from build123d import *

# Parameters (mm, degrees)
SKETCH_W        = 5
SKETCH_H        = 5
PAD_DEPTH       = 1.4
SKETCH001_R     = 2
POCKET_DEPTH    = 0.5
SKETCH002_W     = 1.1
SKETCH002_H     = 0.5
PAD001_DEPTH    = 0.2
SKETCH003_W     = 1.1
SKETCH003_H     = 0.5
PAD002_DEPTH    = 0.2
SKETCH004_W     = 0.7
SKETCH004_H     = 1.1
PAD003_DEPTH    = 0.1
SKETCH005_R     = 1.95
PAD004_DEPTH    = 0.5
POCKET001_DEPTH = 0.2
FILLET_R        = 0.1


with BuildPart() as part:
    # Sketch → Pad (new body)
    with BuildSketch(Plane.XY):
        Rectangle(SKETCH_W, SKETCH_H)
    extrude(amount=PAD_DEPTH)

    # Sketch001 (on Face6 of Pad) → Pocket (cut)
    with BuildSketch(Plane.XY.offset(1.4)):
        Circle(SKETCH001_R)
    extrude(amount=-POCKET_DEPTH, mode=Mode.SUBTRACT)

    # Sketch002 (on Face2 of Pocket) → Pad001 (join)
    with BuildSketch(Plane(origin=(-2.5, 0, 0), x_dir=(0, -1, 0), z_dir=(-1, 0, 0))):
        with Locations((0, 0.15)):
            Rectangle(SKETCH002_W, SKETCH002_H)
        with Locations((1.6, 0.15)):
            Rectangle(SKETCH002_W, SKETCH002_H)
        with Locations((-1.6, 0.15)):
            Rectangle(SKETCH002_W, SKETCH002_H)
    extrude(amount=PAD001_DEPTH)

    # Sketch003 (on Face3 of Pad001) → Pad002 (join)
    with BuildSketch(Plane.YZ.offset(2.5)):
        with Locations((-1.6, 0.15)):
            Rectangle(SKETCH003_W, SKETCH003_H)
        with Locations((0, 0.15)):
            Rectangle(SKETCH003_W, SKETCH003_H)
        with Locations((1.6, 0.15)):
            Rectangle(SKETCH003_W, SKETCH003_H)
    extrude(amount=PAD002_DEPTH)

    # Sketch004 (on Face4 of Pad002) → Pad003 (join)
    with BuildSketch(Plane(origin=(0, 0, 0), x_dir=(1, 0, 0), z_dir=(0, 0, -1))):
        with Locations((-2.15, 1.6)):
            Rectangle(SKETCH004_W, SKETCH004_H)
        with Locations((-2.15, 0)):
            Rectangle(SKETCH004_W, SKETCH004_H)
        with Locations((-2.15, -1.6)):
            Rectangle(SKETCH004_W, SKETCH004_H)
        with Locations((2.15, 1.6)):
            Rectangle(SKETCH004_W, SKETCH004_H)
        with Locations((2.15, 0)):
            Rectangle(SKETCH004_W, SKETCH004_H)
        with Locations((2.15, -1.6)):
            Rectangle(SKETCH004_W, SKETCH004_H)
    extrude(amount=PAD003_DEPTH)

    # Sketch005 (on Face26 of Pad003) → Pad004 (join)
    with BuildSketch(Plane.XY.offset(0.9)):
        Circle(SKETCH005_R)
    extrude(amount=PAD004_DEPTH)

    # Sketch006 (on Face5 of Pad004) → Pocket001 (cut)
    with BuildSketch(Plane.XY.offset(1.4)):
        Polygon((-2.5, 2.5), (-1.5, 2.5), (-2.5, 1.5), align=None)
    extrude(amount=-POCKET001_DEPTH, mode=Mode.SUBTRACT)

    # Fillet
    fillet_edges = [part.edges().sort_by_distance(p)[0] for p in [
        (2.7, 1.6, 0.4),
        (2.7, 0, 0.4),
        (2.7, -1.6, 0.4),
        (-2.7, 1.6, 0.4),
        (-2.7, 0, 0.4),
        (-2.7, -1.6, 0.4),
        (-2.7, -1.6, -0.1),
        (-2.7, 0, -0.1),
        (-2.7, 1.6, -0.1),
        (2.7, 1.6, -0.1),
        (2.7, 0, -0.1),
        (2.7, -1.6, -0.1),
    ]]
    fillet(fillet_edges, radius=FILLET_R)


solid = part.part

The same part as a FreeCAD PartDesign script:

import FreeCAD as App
import Part
import Sketcher
from FreeCAD import Vector


def edges_at(feature, points):
    """Names of the edges that pass closest to the given points."""
    edges = feature.Shape.Edges
    near = lambda p: min(range(len(edges)), key=lambda i: edges[i].distToShape(Part.Vertex(*p))[0])
    return sorted({f"Edge{near(p) + 1}" for p in points})

doc = App.newDocument("Part")
params = doc.addObject("Spreadsheet::Sheet", "Params")
for row, (alias, value) in enumerate([
    ("sketch1_width", "5 mm"),
    ("pad1_length", "1.4 mm"),
    ("sketch2_diameter", "4 mm"),
    ("pocket1_length", "0.5 mm"),
    ("sketch3_width", "1.1 mm"),
    ("sketch3_height", "0.5 mm"),
    ("pad2_length", "0.2 mm"),
    ("sketch4_width", "1.1 mm"),
    ("sketch4_height", "0.5 mm"),
    ("pad3_length", "0.2 mm"),
    ("sketch5_width", "0.7 mm"),
    ("sketch5_height", "1.1 mm"),
    ("pad4_length", "0.1 mm"),
    ("sketch6_diameter", "3.9 mm"),
    ("pad5_length", "0.5 mm"),
    ("sketch7_width", "1 mm"),
    ("pocket2_length", "0.2 mm"),
    ("fillet_radius", "0.1 mm"),
], start=1):
    params.set(f"A{row}", alias)
    params.set(f"B{row}", "=" + value)
    params.setAlias(f"B{row}", alias)

body = doc.addObject("PartDesign::Body", "Body")

# Sketch on XY plane
sketch1 = body.newObject("Sketcher::SketchObject", "Sketch")
sketch1.AttachmentSupport = (doc.getObject("XY_Plane"), [""])
sketch1.MapMode = "FlatFace"
sketch1.addGeometry([
    Part.LineSegment(Vector(-2.5, 2.5, 0), Vector(-2.5, -2.5, 0)),
    Part.LineSegment(Vector(-2.5, -2.5, 0), Vector(2.5, -2.5, 0)),
    Part.LineSegment(Vector(2.5, -2.5, 0), Vector(2.5, 2.5, 0)),
    Part.LineSegment(Vector(2.5, 2.5, 0), Vector(-2.5, 2.5, 0)),
], False)
sketch1.addConstraint([
    Sketcher.Constraint("Coincident", 0, 2, 1, 1),
    Sketcher.Constraint("Coincident", 1, 2, 2, 1),
    Sketcher.Constraint("Coincident", 2, 2, 3, 1),
    Sketcher.Constraint("Coincident", 3, 2, 0, 1),
    Sketcher.Constraint("Vertical", 0),
    Sketcher.Constraint("Horizontal", 1),
    Sketcher.Constraint("Vertical", 2),
    Sketcher.Constraint("Horizontal", 3),
    Sketcher.Constraint("Symmetric", 0, 2, 2, 2, -1, 1),
    Sketcher.Constraint("Equal", 3, 0),
    Sketcher.Constraint("DistanceX", 1, 1, 1, 2, 5.0),
])
sketch1.setExpression("Constraints[10]", "Params.sketch1_width")
pad1 = body.newObject("PartDesign::Pad", "Pad")
pad1.Profile = sketch1
pad1.setExpression("Length", "Params.pad1_length")

# Sketch on XY plane
sketch2 = body.newObject("Sketcher::SketchObject", "Sketch001")
sketch2.AttachmentSupport = (doc.getObject("XY_Plane"), [""])
sketch2.MapMode = "FlatFace"
sketch2.AttachmentOffset = App.Placement(Vector(0, 0, 1.4), App.Rotation())
sketch2.addGeometry(Part.Circle(Vector(0, 0, 0), Vector(0, 0, 1), 2), False)
sketch2.addConstraint([
    Sketcher.Constraint("Coincident", 0, 3, -1, 1),
    Sketcher.Constraint("Diameter", 0, 4.0),
])
sketch2.setExpression("Constraints[1]", "Params.sketch2_diameter")
pocket1 = body.newObject("PartDesign::Pocket", "Pocket")
pocket1.Profile = sketch2
pocket1.setExpression("Length", "Params.pocket1_length")

# Sketch on YZ plane
sketch3 = body.newObject("Sketcher::SketchObject", "Sketch002")
sketch3.AttachmentSupport = (doc.getObject("YZ_Plane"), [""])
sketch3.MapMode = "FlatFace"
sketch3.AttachmentOffset = App.Placement(Vector(0, 0, -2.5), App.Rotation())
sketch3.addGeometry([
    Part.LineSegment(Vector(0.55, 0.4, 0), Vector(0.55, -0.1, 0)),  # 0
    Part.LineSegment(Vector(0.55, -0.1, 0), Vector(-0.55, -0.1, 0)),  # 1
    Part.LineSegment(Vector(-0.55, -0.1, 0), Vector(-0.55, 0.4, 0)),  # 2
    Part.LineSegment(Vector(-0.55, 0.4, 0), Vector(0.55, 0.4, 0)),  # 3
    Part.LineSegment(Vector(-1.05, 0.4, 0), Vector(-1.05, -0.1, 0)),  # 4
    Part.LineSegment(Vector(-1.05, -0.1, 0), Vector(-2.15, -0.1, 0)),  # 5
    Part.LineSegment(Vector(-2.15, -0.1, 0), Vector(-2.15, 0.4, 0)),  # 6
    Part.LineSegment(Vector(-2.15, 0.4, 0), Vector(-1.05, 0.4, 0)),  # 7
    Part.LineSegment(Vector(2.15, 0.4, 0), Vector(2.15, -0.1, 0)),  # 8
    Part.LineSegment(Vector(2.15, -0.1, 0), Vector(1.05, -0.1, 0)),  # 9
    Part.LineSegment(Vector(1.05, -0.1, 0), Vector(1.05, 0.4, 0)),  # 10
    Part.LineSegment(Vector(1.05, 0.4, 0), Vector(2.15, 0.4, 0)),  # 11
], False)
sketch3.addConstraint([
    Sketcher.Constraint("Coincident", 0, 2, 1, 1),
    Sketcher.Constraint("Coincident", 1, 2, 2, 1),
    Sketcher.Constraint("Coincident", 2, 2, 3, 1),
    Sketcher.Constraint("Coincident", 3, 2, 0, 1),
    Sketcher.Constraint("Coincident", 4, 2, 5, 1),
    Sketcher.Constraint("Coincident", 5, 2, 6, 1),
    Sketcher.Constraint("Coincident", 6, 2, 7, 1),
    Sketcher.Constraint("Coincident", 7, 2, 4, 1),
    Sketcher.Constraint("Coincident", 8, 2, 9, 1),
    Sketcher.Constraint("Coincident", 9, 2, 10, 1),
    Sketcher.Constraint("Coincident", 10, 2, 11, 1),
    Sketcher.Constraint("Coincident", 11, 2, 8, 1),
    Sketcher.Constraint("Vertical", 0),
    Sketcher.Constraint("Horizontal", 1),
    Sketcher.Constraint("Vertical", 2),
    Sketcher.Constraint("Horizontal", 3),
    Sketcher.Constraint("Vertical", 4),
    Sketcher.Constraint("Horizontal", 5),
    Sketcher.Constraint("Vertical", 6),
    Sketcher.Constraint("Horizontal", 7),
    Sketcher.Constraint("Vertical", 8),
    Sketcher.Constraint("Horizontal", 9),
    Sketcher.Constraint("Vertical", 10),
    Sketcher.Constraint("Horizontal", 11),
    Sketcher.Constraint("Symmetric", 5, 2, 8, 2, -2),
    Sketcher.Constraint("Symmetric", 7, 2, 10, 2, -2),
    Sketcher.Constraint("Horizontal", 1, 2, 4, 2),
    Sketcher.Constraint("Horizontal", 3, 2, 6, 2),
    Sketcher.Constraint("Equal", 3, 5),
    Sketcher.Constraint("DistanceX", 1, 2, 1, 1, 1.1),
    Sketcher.Constraint("DistanceY", 0, 2, 0, 1, 0.5),
    Sketcher.Constraint("DistanceY", 0, 2, -1, 1, 0.1),
    Sketcher.Constraint("DistanceX", 4, 2, 1, 2, 0.5),
    Sketcher.Constraint("DistanceX", 0, 2, 8, 2, 1.6),
])
sketch3.setExpression("Constraints[29]", "Params.sketch3_width")
sketch3.setExpression("Constraints[30]", "Params.sketch3_height")
pad2 = body.newObject("PartDesign::Pad", "Pad001")
pad2.Profile = sketch3
pad2.setExpression("Length", "Params.pad2_length")
pad2.Reversed = True

# Sketch on YZ plane
sketch4 = body.newObject("Sketcher::SketchObject", "Sketch003")
sketch4.AttachmentSupport = (doc.getObject("YZ_Plane"), [""])
sketch4.MapMode = "FlatFace"
sketch4.AttachmentOffset = App.Placement(Vector(0, 0, 2.5), App.Rotation())
sketch4.addGeometry([
    Part.LineSegment(Vector(-2.15, 0.4, 0), Vector(-2.15, -0.1, 0)),  # 0
    Part.LineSegment(Vector(-2.15, -0.1, 0), Vector(-1.05, -0.1, 0)),  # 1
    Part.LineSegment(Vector(-1.05, -0.1, 0), Vector(-1.05, 0.4, 0)),  # 2
    Part.LineSegment(Vector(-1.05, 0.4, 0), Vector(-2.15, 0.4, 0)),  # 3
    Part.LineSegment(Vector(-0.55, 0.4, 0), Vector(-0.55, -0.1, 0)),  # 4
    Part.LineSegment(Vector(-0.55, -0.1, 0), Vector(0.55, -0.1, 0)),  # 5
    Part.LineSegment(Vector(0.55, -0.1, 0), Vector(0.55, 0.4, 0)),  # 6
    Part.LineSegment(Vector(0.55, 0.4, 0), Vector(-0.55, 0.4, 0)),  # 7
    Part.LineSegment(Vector(1.05, 0.4, 0), Vector(1.05, -0.1, 0)),  # 8
    Part.LineSegment(Vector(1.05, -0.1, 0), Vector(2.15, -0.1, 0)),  # 9
    Part.LineSegment(Vector(2.15, -0.1, 0), Vector(2.15, 0.4, 0)),  # 10
    Part.LineSegment(Vector(2.15, 0.4, 0), Vector(1.05, 0.4, 0)),  # 11
], False)
sketch4.addConstraint([
    Sketcher.Constraint("Coincident", 0, 2, 1, 1),
    Sketcher.Constraint("Coincident", 1, 2, 2, 1),
    Sketcher.Constraint("Coincident", 2, 2, 3, 1),
    Sketcher.Constraint("Coincident", 3, 2, 0, 1),
    Sketcher.Constraint("Coincident", 4, 2, 5, 1),
    Sketcher.Constraint("Coincident", 5, 2, 6, 1),
    Sketcher.Constraint("Coincident", 6, 2, 7, 1),
    Sketcher.Constraint("Coincident", 7, 2, 4, 1),
    Sketcher.Constraint("Coincident", 8, 2, 9, 1),
    Sketcher.Constraint("Coincident", 9, 2, 10, 1),
    Sketcher.Constraint("Coincident", 10, 2, 11, 1),
    Sketcher.Constraint("Coincident", 11, 2, 8, 1),
    Sketcher.Constraint("Vertical", 0),
    Sketcher.Constraint("Horizontal", 1),
    Sketcher.Constraint("Vertical", 2),
    Sketcher.Constraint("Horizontal", 3),
    Sketcher.Constraint("Vertical", 4),
    Sketcher.Constraint("Horizontal", 5),
    Sketcher.Constraint("Vertical", 6),
    Sketcher.Constraint("Horizontal", 7),
    Sketcher.Constraint("Vertical", 8),
    Sketcher.Constraint("Horizontal", 9),
    Sketcher.Constraint("Vertical", 10),
    Sketcher.Constraint("Horizontal", 11),
    Sketcher.Constraint("Symmetric", 1, 2, 8, 2, -2),
    Sketcher.Constraint("Symmetric", 3, 2, 10, 2, -2),
    Sketcher.Constraint("Horizontal", 1, 2, 4, 2),
    Sketcher.Constraint("Horizontal", 3, 2, 6, 2),
    Sketcher.Constraint("Equal", 3, 5),
    Sketcher.Constraint("DistanceX", 1, 1, 1, 2, 1.1),
    Sketcher.Constraint("DistanceY", 0, 2, 0, 1, 0.5),
    Sketcher.Constraint("DistanceY", 0, 2, -1, 1, 0.1),
    Sketcher.Constraint("DistanceX", 1, 2, 4, 2, 0.5),
    Sketcher.Constraint("DistanceX", 5, 2, 8, 2, 0.5),
])
sketch4.setExpression("Constraints[29]", "Params.sketch4_width")
sketch4.setExpression("Constraints[30]", "Params.sketch4_height")
pad3 = body.newObject("PartDesign::Pad", "Pad002")
pad3.Profile = sketch4
pad3.setExpression("Length", "Params.pad3_length")

# Sketch on XY plane
sketch5 = body.newObject("Sketcher::SketchObject", "Sketch004")
sketch5.AttachmentSupport = (doc.getObject("XY_Plane"), [""])
sketch5.MapMode = "FlatFace"
sketch5.addGeometry([
    Part.LineSegment(Vector(-2.5, -2.15, 0), Vector(-2.5, -1.05, 0)),  # 0
    Part.LineSegment(Vector(-2.5, -1.05, 0), Vector(-1.8, -1.05, 0)),  # 1
    Part.LineSegment(Vector(-1.8, -1.05, 0), Vector(-1.8, -2.15, 0)),  # 2
    Part.LineSegment(Vector(-1.8, -2.15, 0), Vector(-2.5, -2.15, 0)),  # 3
    Part.LineSegment(Vector(-2.5, -0.55, 0), Vector(-2.5, 0.55, 0)),  # 4
    Part.LineSegment(Vector(-2.5, 0.55, 0), Vector(-1.8, 0.55, 0)),  # 5
    Part.LineSegment(Vector(-1.8, 0.55, 0), Vector(-1.8, -0.55, 0)),  # 6
    Part.LineSegment(Vector(-1.8, -0.55, 0), Vector(-2.5, -0.55, 0)),  # 7
    Part.LineSegment(Vector(-2.5, 1.05, 0), Vector(-2.5, 2.15, 0)),  # 8
    Part.LineSegment(Vector(-2.5, 2.15, 0), Vector(-1.8, 2.15, 0)),  # 9
    Part.LineSegment(Vector(-1.8, 2.15, 0), Vector(-1.8, 1.05, 0)),  # 10
    Part.LineSegment(Vector(-1.8, 1.05, 0), Vector(-2.5, 1.05, 0)),  # 11
    Part.LineSegment(Vector(1.8, -2.15, 0), Vector(1.8, -1.05, 0)),  # 12
    Part.LineSegment(Vector(1.8, -1.05, 0), Vector(2.5, -1.05, 0)),  # 13
    Part.LineSegment(Vector(2.5, -1.05, 0), Vector(2.5, -2.15, 0)),  # 14
    Part.LineSegment(Vector(2.5, -2.15, 0), Vector(1.8, -2.15, 0)),  # 15
    Part.LineSegment(Vector(1.8, -0.55, 0), Vector(1.8, 0.55, 0)),  # 16
    Part.LineSegment(Vector(1.8, 0.55, 0), Vector(2.5, 0.55, 0)),  # 17
    Part.LineSegment(Vector(2.5, 0.55, 0), Vector(2.5, -0.55, 0)),  # 18
    Part.LineSegment(Vector(2.5, -0.55, 0), Vector(1.8, -0.55, 0)),  # 19
    Part.LineSegment(Vector(1.8, 1.05, 0), Vector(1.8, 2.15, 0)),  # 20
    Part.LineSegment(Vector(1.8, 2.15, 0), Vector(2.5, 2.15, 0)),  # 21
    Part.LineSegment(Vector(2.5, 2.15, 0), Vector(2.5, 1.05, 0)),  # 22
    Part.LineSegment(Vector(2.5, 1.05, 0), Vector(1.8, 1.05, 0)),  # 23
], False)
sketch5.addConstraint([
    Sketcher.Constraint("Coincident", 0, 2, 1, 1),
    Sketcher.Constraint("Coincident", 1, 2, 2, 1),
    Sketcher.Constraint("Coincident", 2, 2, 3, 1),
    Sketcher.Constraint("Coincident", 3, 2, 0, 1),
    Sketcher.Constraint("Coincident", 4, 2, 5, 1),
    Sketcher.Constraint("Coincident", 5, 2, 6, 1),
    Sketcher.Constraint("Coincident", 6, 2, 7, 1),
    Sketcher.Constraint("Coincident", 7, 2, 4, 1),
    Sketcher.Constraint("Coincident", 8, 2, 9, 1),
    Sketcher.Constraint("Coincident", 9, 2, 10, 1),
    Sketcher.Constraint("Coincident", 10, 2, 11, 1),
    Sketcher.Constraint("Coincident", 11, 2, 8, 1),
    Sketcher.Constraint("Coincident", 12, 2, 13, 1),
    Sketcher.Constraint("Coincident", 13, 2, 14, 1),
    Sketcher.Constraint("Coincident", 14, 2, 15, 1),
    Sketcher.Constraint("Coincident", 15, 2, 12, 1),
    Sketcher.Constraint("Coincident", 16, 2, 17, 1),
    Sketcher.Constraint("Coincident", 17, 2, 18, 1),
    Sketcher.Constraint("Coincident", 18, 2, 19, 1),
    Sketcher.Constraint("Coincident", 19, 2, 16, 1),
    Sketcher.Constraint("Coincident", 20, 2, 21, 1),
    Sketcher.Constraint("Coincident", 21, 2, 22, 1),
    Sketcher.Constraint("Coincident", 22, 2, 23, 1),
    Sketcher.Constraint("Coincident", 23, 2, 20, 1),
    Sketcher.Constraint("Vertical", 0),
    Sketcher.Constraint("Horizontal", 1),
    Sketcher.Constraint("Vertical", 2),
    Sketcher.Constraint("Horizontal", 3),
    Sketcher.Constraint("Vertical", 4),
    Sketcher.Constraint("Horizontal", 5),
    Sketcher.Constraint("Vertical", 6),
    Sketcher.Constraint("Horizontal", 7),
    Sketcher.Constraint("Vertical", 8),
    Sketcher.Constraint("Horizontal", 9),
    Sketcher.Constraint("Vertical", 10),
    Sketcher.Constraint("Horizontal", 11),
    Sketcher.Constraint("Vertical", 12),
    Sketcher.Constraint("Horizontal", 13),
    Sketcher.Constraint("Vertical", 14),
    Sketcher.Constraint("Horizontal", 15),
    Sketcher.Constraint("Vertical", 16),
    Sketcher.Constraint("Horizontal", 17),
    Sketcher.Constraint("Vertical", 18),
    Sketcher.Constraint("Horizontal", 19),
    Sketcher.Constraint("Vertical", 20),
    Sketcher.Constraint("Horizontal", 21),
    Sketcher.Constraint("Vertical", 22),
    Sketcher.Constraint("Horizontal", 23),
    Sketcher.Constraint("Symmetric", 10, 2, 12, 2, -1, 1),
    Sketcher.Constraint("Symmetric", 8, 2, 14, 2, -1, 1),
    Sketcher.Constraint("Symmetric", 6, 2, 16, 2, -1, 1),
    Sketcher.Constraint("Symmetric", 4, 2, 18, 2, -1, 1),
    Sketcher.Constraint("Symmetric", 2, 2, 20, 2, -1, 1),
    Sketcher.Constraint("Symmetric", 0, 2, 22, 2, -1, 1),
    Sketcher.Constraint("Symmetric", 1, 2, 12, 2, -2),
    Sketcher.Constraint("Symmetric", 3, 2, 14, 2, -2),
    Sketcher.Constraint("Horizontal", 5, 2, 16, 2),
    Sketcher.Constraint("Vertical", 3, 2, 4, 2),
    Sketcher.Constraint("Vertical", 2, 2, 5, 2),
    Sketcher.Constraint("Equal", 2, 4),
    Sketcher.Constraint("DistanceX", 1, 1, 1, 2, 0.7),
    Sketcher.Constraint("DistanceY", 0, 1, 0, 2, 1.1),
    Sketcher.Constraint("DistanceX", 0, 2, -1, 1, 2.5),
    Sketcher.Constraint("DistanceY", 0, 2, 4, 2, 1.6),
])
sketch5.setExpression("Constraints[60]", "Params.sketch5_width")
sketch5.setExpression("Constraints[61]", "Params.sketch5_height")
pad4 = body.newObject("PartDesign::Pad", "Pad003")
pad4.Profile = sketch5
pad4.setExpression("Length", "Params.pad4_length")
pad4.Reversed = True

# Sketch on XY plane
sketch6 = body.newObject("Sketcher::SketchObject", "Sketch005")
sketch6.AttachmentSupport = (doc.getObject("XY_Plane"), [""])
sketch6.MapMode = "FlatFace"
sketch6.AttachmentOffset = App.Placement(Vector(0, 0, 0.9), App.Rotation())
sketch6.addGeometry(Part.Circle(Vector(0, 0, 0), Vector(0, 0, 1), 1.95), False)
sketch6.addConstraint([
    Sketcher.Constraint("Coincident", 0, 3, -1, 1),
    Sketcher.Constraint("Diameter", 0, 3.9),
])
sketch6.setExpression("Constraints[1]", "Params.sketch6_diameter")
pad5 = body.newObject("PartDesign::Pad", "Pad004")
pad5.Profile = sketch6
pad5.setExpression("Length", "Params.pad5_length")

# Sketch on XY plane
sketch7 = body.newObject("Sketcher::SketchObject", "Sketch006")
sketch7.AttachmentSupport = (doc.getObject("XY_Plane"), [""])
sketch7.MapMode = "FlatFace"
sketch7.AttachmentOffset = App.Placement(Vector(0, 0, 1.4), App.Rotation())
sketch7.addGeometry([
    Part.LineSegment(Vector(-1.5, 2.5, 0), Vector(-2.5, 2.5, 0)),
    Part.LineSegment(Vector(-2.5, 2.5, 0), Vector(-2.5, 1.5, 0)),
    Part.LineSegment(Vector(-2.5, 1.5, 0), Vector(-1.5, 2.5, 0)),
], False)
sketch7.addConstraint([
    Sketcher.Constraint("Coincident", 0, 2, 1, 1),
    Sketcher.Constraint("Coincident", 1, 2, 2, 1),
    Sketcher.Constraint("Coincident", 2, 2, 0, 1),
    Sketcher.Constraint("Horizontal", 0),
    Sketcher.Constraint("Vertical", 1),
    Sketcher.Constraint("Equal", 0, 1),
    Sketcher.Constraint("DistanceX", 0, 2, 0, 1, 1.0),
    Sketcher.Constraint("DistanceX", 0, 2, -1, 1, 2.5),
    Sketcher.Constraint("DistanceY", -1, 1, 0, 2, 2.5),
])
sketch7.setExpression("Constraints[6]", "Params.sketch7_width")
pocket2 = body.newObject("PartDesign::Pocket", "Pocket001")
pocket2.Profile = sketch7
pocket2.setExpression("Length", "Params.pocket2_length")
doc.recompute()

fillet = body.newObject("PartDesign::Fillet", "Fillet")
fillet.Base = (pocket2, edges_at(pocket2, [
    (2.7, 1.6, 0.4),
    (2.7, 0, 0.4),
    (2.7, -1.6, 0.4),
    (-2.7, 1.6, 0.4),
    (-2.7, 0, 0.4),
    (-2.7, -1.6, 0.4),
    (-2.7, -1.6, -0.1),
    (-2.7, 0, -0.1),
    (-2.7, 1.6, -0.1),
    (2.7, 1.6, -0.1),
    (2.7, 0, -0.1),
    (2.7, -1.6, -0.1),
]))
fillet.setExpression("Radius", "Params.fillet_radius")

doc.recompute()
